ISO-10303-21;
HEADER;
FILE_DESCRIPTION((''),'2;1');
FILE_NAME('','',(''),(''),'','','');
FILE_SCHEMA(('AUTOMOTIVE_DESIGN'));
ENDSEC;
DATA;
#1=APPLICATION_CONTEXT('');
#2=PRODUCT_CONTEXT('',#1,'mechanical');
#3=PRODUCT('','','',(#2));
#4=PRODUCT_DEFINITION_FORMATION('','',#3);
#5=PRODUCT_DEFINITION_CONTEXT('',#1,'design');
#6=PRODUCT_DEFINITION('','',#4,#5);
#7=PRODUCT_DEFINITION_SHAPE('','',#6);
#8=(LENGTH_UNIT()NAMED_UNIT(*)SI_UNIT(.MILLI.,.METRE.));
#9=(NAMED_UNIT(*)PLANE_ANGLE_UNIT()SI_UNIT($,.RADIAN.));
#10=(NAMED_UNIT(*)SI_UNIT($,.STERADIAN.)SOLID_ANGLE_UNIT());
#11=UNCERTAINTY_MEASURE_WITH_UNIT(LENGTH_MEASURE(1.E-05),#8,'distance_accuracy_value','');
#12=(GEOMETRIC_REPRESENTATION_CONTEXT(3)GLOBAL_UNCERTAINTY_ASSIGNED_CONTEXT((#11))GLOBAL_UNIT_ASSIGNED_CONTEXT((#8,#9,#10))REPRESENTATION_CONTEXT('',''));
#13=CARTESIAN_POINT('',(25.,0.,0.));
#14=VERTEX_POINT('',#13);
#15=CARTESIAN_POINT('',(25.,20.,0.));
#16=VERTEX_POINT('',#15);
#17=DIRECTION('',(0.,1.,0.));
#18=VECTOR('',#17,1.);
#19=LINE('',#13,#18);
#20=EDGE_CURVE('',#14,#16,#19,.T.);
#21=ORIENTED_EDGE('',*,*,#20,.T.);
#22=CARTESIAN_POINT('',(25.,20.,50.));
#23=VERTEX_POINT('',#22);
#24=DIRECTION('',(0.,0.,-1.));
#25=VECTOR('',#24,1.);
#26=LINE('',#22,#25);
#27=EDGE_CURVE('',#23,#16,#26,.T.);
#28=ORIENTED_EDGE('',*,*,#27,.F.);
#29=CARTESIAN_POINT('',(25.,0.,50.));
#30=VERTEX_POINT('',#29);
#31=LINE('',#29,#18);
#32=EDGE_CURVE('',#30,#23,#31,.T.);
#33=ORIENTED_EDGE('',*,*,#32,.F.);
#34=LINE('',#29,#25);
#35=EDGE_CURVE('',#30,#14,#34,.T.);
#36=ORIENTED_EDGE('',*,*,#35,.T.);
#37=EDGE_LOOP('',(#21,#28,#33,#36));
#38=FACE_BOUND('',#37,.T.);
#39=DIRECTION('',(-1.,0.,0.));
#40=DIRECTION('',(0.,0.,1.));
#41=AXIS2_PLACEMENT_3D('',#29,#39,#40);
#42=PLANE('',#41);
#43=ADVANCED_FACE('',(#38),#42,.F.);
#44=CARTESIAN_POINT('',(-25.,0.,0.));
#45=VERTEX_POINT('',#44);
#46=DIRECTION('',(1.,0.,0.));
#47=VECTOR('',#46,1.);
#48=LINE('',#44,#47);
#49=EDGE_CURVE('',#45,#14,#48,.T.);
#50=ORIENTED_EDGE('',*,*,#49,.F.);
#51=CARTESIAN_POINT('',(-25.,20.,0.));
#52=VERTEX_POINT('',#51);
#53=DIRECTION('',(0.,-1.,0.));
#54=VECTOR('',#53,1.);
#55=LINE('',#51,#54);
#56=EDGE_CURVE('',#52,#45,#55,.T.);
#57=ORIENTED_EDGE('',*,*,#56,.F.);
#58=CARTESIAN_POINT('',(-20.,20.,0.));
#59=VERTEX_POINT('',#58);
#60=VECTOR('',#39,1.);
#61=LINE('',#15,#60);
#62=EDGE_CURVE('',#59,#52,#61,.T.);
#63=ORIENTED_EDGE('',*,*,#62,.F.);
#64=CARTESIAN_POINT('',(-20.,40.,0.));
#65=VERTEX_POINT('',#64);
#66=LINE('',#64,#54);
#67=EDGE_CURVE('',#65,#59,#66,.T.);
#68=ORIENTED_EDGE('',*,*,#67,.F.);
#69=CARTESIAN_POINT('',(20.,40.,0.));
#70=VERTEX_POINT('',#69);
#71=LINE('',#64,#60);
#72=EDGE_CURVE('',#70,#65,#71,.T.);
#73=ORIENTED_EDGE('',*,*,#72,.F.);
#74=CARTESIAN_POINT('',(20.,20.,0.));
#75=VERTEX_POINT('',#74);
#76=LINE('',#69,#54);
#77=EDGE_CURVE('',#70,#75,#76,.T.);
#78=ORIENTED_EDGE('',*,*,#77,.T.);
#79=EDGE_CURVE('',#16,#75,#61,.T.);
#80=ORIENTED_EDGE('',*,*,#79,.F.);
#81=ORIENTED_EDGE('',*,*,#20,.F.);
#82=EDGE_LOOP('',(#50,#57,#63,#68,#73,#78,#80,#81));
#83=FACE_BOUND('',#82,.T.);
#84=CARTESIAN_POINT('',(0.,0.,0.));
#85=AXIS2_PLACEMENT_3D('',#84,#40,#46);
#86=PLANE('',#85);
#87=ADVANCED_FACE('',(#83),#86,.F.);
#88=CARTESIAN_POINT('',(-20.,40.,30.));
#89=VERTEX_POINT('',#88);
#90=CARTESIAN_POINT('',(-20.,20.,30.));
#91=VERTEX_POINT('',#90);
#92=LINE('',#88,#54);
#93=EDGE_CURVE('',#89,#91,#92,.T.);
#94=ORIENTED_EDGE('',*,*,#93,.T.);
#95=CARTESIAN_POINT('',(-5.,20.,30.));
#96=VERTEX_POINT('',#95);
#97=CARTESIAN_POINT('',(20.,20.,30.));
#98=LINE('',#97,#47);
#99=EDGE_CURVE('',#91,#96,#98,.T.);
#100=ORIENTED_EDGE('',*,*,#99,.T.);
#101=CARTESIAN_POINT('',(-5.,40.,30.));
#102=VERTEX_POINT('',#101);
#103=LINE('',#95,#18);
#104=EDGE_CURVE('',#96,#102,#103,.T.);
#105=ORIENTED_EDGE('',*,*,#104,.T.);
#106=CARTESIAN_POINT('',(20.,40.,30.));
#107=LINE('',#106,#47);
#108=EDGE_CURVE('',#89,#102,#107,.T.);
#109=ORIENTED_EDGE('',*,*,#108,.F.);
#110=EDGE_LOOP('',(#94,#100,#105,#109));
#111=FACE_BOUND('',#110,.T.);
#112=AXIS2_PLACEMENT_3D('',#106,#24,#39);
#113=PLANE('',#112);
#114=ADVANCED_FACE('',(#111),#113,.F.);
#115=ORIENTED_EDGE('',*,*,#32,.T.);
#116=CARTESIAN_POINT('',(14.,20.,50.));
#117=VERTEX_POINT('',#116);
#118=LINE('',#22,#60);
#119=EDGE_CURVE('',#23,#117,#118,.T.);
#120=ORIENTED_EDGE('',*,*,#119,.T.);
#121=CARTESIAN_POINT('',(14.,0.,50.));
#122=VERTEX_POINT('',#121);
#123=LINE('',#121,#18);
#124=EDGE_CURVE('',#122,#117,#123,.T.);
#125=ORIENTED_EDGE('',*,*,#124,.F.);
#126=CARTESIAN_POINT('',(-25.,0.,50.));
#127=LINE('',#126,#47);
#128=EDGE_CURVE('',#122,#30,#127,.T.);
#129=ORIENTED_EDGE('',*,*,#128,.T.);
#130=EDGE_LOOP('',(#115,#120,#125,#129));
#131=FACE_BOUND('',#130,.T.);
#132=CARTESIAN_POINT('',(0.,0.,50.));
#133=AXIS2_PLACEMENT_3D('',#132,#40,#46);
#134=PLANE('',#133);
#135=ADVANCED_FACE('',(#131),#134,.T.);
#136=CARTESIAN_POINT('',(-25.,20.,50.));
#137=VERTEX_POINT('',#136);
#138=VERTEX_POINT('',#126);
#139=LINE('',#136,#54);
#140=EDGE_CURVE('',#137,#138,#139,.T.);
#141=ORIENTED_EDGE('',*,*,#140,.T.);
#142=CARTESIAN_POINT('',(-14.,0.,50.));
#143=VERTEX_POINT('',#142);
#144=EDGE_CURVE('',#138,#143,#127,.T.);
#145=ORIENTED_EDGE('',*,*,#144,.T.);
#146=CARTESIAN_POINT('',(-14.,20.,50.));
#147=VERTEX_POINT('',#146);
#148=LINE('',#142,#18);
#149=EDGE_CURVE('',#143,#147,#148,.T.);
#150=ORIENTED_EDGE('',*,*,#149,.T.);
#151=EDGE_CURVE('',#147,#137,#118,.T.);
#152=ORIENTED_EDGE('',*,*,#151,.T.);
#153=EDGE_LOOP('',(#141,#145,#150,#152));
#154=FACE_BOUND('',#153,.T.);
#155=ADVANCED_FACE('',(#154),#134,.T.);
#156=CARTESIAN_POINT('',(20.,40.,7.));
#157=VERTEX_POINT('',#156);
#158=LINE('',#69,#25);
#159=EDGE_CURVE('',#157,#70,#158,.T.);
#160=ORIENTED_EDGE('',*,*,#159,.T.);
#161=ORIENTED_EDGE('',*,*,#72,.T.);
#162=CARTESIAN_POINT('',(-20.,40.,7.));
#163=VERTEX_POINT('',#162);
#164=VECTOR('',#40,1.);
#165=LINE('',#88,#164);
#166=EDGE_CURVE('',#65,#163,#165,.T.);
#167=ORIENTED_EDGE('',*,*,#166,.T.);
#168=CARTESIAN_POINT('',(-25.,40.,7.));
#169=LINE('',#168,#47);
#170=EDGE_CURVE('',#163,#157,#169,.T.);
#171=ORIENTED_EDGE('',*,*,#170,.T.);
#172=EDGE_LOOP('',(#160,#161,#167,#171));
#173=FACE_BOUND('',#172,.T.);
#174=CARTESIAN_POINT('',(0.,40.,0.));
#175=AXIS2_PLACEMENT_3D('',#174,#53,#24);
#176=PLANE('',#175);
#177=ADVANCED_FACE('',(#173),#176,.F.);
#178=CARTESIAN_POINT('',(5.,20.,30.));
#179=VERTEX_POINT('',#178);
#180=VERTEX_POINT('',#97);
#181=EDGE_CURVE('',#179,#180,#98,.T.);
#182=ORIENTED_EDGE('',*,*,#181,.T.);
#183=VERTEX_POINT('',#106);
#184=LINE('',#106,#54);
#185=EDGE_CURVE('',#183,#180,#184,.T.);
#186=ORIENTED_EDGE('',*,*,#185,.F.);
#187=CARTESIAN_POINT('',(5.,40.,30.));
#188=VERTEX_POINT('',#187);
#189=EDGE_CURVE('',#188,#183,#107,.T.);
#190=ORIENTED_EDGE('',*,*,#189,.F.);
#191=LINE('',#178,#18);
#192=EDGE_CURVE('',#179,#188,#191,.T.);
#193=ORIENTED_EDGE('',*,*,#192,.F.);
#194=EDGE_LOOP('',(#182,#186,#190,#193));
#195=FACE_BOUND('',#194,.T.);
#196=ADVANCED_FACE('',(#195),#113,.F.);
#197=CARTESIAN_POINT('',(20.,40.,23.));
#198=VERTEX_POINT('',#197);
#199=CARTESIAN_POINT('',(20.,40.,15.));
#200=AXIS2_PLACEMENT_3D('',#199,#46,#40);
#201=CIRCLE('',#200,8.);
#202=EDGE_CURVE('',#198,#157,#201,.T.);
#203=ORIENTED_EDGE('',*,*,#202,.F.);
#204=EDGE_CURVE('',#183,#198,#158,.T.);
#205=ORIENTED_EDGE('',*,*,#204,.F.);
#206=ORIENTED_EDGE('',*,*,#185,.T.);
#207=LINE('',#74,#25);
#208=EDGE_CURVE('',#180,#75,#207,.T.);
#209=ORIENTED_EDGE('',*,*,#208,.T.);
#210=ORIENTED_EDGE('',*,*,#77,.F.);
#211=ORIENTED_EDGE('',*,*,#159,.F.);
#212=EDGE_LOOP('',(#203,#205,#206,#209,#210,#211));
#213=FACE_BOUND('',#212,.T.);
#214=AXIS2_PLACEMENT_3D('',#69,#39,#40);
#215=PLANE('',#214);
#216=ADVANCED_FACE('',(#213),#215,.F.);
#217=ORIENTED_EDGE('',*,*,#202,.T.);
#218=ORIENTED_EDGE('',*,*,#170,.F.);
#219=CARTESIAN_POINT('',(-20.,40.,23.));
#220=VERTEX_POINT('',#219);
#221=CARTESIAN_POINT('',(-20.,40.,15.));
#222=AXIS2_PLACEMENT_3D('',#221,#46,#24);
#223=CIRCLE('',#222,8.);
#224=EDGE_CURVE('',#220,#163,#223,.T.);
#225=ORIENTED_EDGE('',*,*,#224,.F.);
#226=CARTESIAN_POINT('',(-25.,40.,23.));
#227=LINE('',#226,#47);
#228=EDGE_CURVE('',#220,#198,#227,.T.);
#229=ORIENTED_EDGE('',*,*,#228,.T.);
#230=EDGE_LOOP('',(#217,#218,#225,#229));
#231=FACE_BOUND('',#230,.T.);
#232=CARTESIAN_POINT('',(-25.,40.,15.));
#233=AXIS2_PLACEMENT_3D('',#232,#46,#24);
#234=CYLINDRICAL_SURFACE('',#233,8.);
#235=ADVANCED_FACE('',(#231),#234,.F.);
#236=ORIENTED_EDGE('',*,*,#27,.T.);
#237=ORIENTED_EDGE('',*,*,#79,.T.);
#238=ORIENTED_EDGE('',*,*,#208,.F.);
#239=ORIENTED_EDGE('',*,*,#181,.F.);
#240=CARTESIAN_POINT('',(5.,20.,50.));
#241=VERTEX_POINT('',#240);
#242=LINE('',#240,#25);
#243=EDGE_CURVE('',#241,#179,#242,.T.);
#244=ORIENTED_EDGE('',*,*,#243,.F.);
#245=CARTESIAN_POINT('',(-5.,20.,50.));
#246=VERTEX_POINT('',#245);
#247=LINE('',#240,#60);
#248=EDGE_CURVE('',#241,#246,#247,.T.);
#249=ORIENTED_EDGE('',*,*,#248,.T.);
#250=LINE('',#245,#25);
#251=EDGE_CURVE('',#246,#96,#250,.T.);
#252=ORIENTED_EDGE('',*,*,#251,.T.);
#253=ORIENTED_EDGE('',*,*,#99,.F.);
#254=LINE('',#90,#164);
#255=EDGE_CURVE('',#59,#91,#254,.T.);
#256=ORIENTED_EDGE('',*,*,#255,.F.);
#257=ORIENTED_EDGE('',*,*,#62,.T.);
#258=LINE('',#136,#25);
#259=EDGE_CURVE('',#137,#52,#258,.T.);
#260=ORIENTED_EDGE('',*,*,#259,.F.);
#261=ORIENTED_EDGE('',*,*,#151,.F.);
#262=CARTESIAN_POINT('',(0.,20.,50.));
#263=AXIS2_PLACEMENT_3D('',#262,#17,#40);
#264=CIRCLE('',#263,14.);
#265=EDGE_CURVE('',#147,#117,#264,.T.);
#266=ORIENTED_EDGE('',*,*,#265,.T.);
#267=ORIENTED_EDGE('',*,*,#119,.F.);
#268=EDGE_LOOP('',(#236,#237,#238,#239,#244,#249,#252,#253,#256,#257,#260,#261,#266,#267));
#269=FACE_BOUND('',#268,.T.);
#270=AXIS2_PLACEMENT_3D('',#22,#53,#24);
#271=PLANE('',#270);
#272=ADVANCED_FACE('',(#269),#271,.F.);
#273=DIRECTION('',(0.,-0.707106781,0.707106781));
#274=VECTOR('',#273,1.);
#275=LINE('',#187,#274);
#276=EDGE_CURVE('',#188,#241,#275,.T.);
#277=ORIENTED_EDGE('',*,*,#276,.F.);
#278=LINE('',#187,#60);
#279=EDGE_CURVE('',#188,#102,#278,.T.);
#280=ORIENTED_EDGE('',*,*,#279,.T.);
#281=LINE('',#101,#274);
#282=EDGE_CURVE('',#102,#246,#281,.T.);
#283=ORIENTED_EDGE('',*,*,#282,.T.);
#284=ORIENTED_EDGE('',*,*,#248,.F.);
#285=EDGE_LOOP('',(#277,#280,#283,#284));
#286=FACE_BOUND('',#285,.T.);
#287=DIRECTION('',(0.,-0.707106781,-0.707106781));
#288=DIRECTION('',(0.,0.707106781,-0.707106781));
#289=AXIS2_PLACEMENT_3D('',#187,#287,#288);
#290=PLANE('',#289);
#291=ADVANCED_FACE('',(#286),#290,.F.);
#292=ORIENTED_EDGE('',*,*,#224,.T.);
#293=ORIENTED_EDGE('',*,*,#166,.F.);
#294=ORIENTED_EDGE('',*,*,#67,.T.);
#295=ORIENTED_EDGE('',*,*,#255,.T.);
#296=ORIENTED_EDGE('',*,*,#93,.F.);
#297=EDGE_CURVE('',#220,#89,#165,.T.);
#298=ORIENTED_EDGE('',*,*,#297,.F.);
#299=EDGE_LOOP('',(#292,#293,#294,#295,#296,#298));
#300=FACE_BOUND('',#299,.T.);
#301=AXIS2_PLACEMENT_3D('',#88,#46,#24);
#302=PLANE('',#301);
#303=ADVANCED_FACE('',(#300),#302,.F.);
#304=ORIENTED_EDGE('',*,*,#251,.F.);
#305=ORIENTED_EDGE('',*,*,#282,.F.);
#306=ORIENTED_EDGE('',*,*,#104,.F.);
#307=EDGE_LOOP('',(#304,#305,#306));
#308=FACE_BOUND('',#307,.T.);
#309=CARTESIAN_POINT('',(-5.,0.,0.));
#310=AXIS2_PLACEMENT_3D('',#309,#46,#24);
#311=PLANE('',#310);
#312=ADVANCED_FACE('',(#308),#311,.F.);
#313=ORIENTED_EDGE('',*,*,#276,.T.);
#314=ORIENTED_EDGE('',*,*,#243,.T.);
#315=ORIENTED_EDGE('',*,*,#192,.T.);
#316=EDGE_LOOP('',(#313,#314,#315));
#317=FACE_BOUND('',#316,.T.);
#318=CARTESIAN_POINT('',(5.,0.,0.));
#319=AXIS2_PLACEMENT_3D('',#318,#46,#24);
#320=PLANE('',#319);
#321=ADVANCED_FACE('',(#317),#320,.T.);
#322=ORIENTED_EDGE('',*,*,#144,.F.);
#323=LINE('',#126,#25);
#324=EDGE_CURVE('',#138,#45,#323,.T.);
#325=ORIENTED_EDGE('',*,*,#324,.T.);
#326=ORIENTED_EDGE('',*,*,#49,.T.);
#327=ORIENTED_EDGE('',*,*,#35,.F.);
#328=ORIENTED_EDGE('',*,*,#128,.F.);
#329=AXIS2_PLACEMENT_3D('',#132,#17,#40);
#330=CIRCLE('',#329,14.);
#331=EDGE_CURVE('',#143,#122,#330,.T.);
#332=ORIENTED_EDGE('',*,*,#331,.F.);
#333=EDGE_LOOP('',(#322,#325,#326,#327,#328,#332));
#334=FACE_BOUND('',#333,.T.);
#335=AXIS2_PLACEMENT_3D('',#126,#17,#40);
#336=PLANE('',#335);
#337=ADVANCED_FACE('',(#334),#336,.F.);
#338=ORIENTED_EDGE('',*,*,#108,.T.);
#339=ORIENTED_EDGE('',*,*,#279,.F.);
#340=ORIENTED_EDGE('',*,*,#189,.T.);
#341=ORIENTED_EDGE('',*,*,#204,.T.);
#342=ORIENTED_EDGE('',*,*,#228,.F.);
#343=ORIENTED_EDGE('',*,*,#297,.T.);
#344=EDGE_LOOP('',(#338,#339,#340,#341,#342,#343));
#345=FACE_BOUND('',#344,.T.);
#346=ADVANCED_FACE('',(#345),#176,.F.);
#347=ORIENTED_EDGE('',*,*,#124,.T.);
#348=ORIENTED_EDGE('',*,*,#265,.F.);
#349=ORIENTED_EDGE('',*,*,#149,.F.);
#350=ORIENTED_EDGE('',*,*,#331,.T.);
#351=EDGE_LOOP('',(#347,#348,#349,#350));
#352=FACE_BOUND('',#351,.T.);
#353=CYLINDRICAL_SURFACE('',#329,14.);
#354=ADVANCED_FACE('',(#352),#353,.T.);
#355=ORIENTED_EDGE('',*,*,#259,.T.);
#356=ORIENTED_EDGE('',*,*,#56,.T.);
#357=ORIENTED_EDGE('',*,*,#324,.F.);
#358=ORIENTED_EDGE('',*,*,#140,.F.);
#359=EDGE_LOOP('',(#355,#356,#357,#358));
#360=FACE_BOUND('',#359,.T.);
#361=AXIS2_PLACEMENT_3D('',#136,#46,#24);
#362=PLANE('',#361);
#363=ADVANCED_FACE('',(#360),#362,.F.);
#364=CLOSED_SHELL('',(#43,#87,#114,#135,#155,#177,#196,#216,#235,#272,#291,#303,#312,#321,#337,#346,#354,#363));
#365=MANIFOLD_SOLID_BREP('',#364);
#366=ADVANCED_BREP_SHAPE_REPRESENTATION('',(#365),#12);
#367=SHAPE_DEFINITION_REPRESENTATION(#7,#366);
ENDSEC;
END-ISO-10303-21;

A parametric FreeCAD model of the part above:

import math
import FreeCAD as App
import Part
import Sketcher

V = App.Vector


def add_polygon(sketch, points):
    """Adds a closed chain of lines whose ends are joined by coincident constraints."""
    first, n = sketch.GeometryCount, len(points)
    for a, b in zip(points, points[1:] + points[:1]):
        sketch.addGeometry(Part.LineSegment(App.Vector(*a, 0), App.Vector(*b, 0)), False)
    for i in range(n):
        sketch.addConstraint(Sketcher.Constraint("Coincident", first + i, 2, first + (i + 1) % n, 1))

doc = App.newDocument("Part")
body = doc.addObject("PartDesign::Body", "Body")

sketch1 = body.newObject("Sketcher::SketchObject", "Sketch")
sketch1.AttachmentSupport = (doc.getObject("XY_Plane"), [""])
sketch1.MapMode = "FlatFace"
add_polygon(sketch1, [(-25, 20), (-25, 0), (25, 0), (25, 20)])
sketch1.addConstraint([
    Sketcher.Constraint("Vertical", 0),
    Sketcher.Constraint("Horizontal", 1),
    Sketcher.Constraint("Vertical", 2),
    Sketcher.Constraint("Horizontal", 3),
    Sketcher.Constraint("Symmetric", 0, 2, 1, 2, -1, 1),
    Sketcher.Constraint("DistanceX", 1, 1, 1, 2, 50.0),
    Sketcher.Constraint("DistanceY", 0, 2, 0, 1, 20.0),
])
pad1 = body.newObject("PartDesign::Pad", "Pad")
pad1.Profile = sketch1
pad1.Length = 50

sketch2 = body.newObject("Sketcher::SketchObject", "Sketch001")
sketch2.AttachmentSupport = (doc.getObject("XZ_Plane"), [""])
sketch2.MapMode = "FlatFace"
sketch2.AttachmentOffset = App.Placement(V(0, 0, -20), App.Rotation())
add_polygon(sketch2, [(-20, 0), (-20, 30), (20, 30), (20, 0)])
sketch2.addConstraint([
    Sketcher.Constraint("Vertical", 0),
    Sketcher.Constraint("Horizontal", 1),
    Sketcher.Constraint("Vertical", 2),
    Sketcher.Constraint("Horizontal", 3),
    Sketcher.Constraint("Symmetric", 2, 2, 3, 2, -1, 1),
    Sketcher.Constraint("DistanceX", 1, 1, 1, 2, 40.0),
    Sketcher.Constraint("DistanceY", 0, 1, 0, 2, 30.0),
])
pad2 = body.newObject("PartDesign::Pad", "Pad001")
pad2.Profile = sketch2
pad2.Length = 20
pad2.Reversed = True

sketch3 = body.newObject("Sketcher::SketchObject", "Sketch002")
sketch3.AttachmentSupport = (doc.getObject("YZ_Plane"), [""])
sketch3.MapMode = "FlatFace"
sketch3.AttachmentOffset = App.Placement(V(0, 0, 20), App.Rotation())
sketch3.addGeometry([
    Part.LineSegment(V(40, 7, 0), V(40, 23, 0)),
    Part.ArcOfCircle(Part.Circle(V(40, 15, 0), V(0, 0, 1), 8), math.radians(90), math.radians(270)),
], False)
sketch3.addConstraint([
    Sketcher.Constraint("Coincident", 0, 1, 1, 2),
    Sketcher.Constraint("Coincident", 1, 1, 0, 2),
    Sketcher.Constraint("Vertical", 0),
    Sketcher.Constraint("Vertical", 1, 3, 0, 1),
    Sketcher.Constraint("Radius", 1, 8.0),
    Sketcher.Constraint("DistanceX", -1, 1, 1, 3, 40.0),
    Sketcher.Constraint("DistanceY", -1, 1, 1, 3, 15.0),
])
pocket1 = body.newObject("PartDesign::Pocket", "Pocket")
pocket1.Profile = sketch3
pocket1.Type = "ThroughAll"

sketch4 = body.newObject("Sketcher::SketchObject", "Sketch003")
sketch4.AttachmentSupport = (doc.getObject("XZ_Plane"), [""])
sketch4.MapMode = "FlatFace"
sketch4.AttachmentOffset = App.Placement(V(0, 0, -20), App.Rotation())
sketch4.addGeometry([
    Part.LineSegment(V(14, 50, 0), V(-14, 50, 0)),
    Part.ArcOfCircle(Part.Circle(V(0, 50, 0), V(0, 0, 1), 14), math.radians(0), math.radians(180)),
], False)
sketch4.addConstraint([
    Sketcher.Constraint("Coincident", 0, 1, 1, 1),
    Sketcher.Constraint("Coincident", 1, 2, 0, 2),
    Sketcher.Constraint("Horizontal", 0),
    Sketcher.Constraint("PointOnObject", 1, 3, -2),
    Sketcher.Constraint("Horizontal", 1, 3, 0, 1),
    Sketcher.Constraint("Radius", 1, 14.0),
    Sketcher.Constraint("DistanceY", -1, 1, 1, 3, 50.0),
])
pad3 = body.newObject("PartDesign::Pad", "Pad002")
pad3.Profile = sketch4
pad3.Length = 20

sketch5 = body.newObject("Sketcher::SketchObject", "Sketch004")
sketch5.AttachmentSupport = (doc.getObject("YZ_Plane"), [""])
sketch5.MapMode = "FlatFace"
add_polygon(sketch5, [(20, 30), (40, 30), (20, 50)])
sketch5.addConstraint([
    Sketcher.Constraint("Horizontal", 0),
    Sketcher.Constraint("Vertical", 2),
    Sketcher.Constraint("Equal", 0, 2),
    Sketcher.Constraint("DistanceX", 0, 1, 0, 2, 20.0),
    Sketcher.Constraint("DistanceX", -1, 1, 0, 2, 40.0),
    Sketcher.Constraint("DistanceY", -1, 1, 0, 2, 30.0),
])
pad4 = body.newObject("PartDesign::Pad", "Pad003")
pad4.Profile = sketch5
pad4.Length = 10
pad4.Midplane = True

doc.recompute()
